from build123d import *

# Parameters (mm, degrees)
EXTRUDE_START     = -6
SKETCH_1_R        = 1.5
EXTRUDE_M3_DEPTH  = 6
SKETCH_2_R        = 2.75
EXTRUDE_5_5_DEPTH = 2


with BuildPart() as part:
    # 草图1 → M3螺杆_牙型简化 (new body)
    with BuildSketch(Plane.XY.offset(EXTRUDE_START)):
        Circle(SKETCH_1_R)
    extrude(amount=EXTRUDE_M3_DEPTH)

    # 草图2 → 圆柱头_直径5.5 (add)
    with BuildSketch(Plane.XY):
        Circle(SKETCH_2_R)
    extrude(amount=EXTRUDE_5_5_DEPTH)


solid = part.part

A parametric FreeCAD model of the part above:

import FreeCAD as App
import Part
import Sketcher
Q = App.Units.Quantity

doc = App.newDocument("Part")
body = doc.addObject("PartDesign::Body", "Body")

sketch1 = body.newObject("Sketcher::SketchObject", "Sketch")
sketch1.AttachmentSupport = (doc.getObject("XY_Plane"), [""])
sketch1.MapMode = "FlatFace"
sketch1.AttachmentOffset = App.Placement(App.Vector(0, 0, -6), App.Rotation())
sketch1.addGeometry(Part.Circle(App.Vector(0, 0, 0), App.Vector(0, 0, 1), 1.5), False)
sketch1.addConstraint([
    Sketcher.Constraint("Coincident", 0, 3, -1, 1),
    Sketcher.Constraint("Diameter", 0, Q("3 mm")),
])
pad1 = body.newObject("PartDesign::Pad", "Pad")
pad1.Profile = sketch1
pad1.Length = 6

sketch2 = body.newObject("Sketcher::SketchObject", "Sketch001")
sketch2.AttachmentSupport = (doc.getObject("XY_Plane"), [""])
sketch2.MapMode = "FlatFace"
sketch2.addGeometry(Part.Circle(App.Vector(0, 0, 0), App.Vector(0, 0, 1), 2.8), False)
sketch2.addConstraint([
    Sketcher.Constraint("Coincident", 0, 3, -1, 1),
    Sketcher.Constraint("Diameter", 0, Q("5.5 mm")),
])
pad2 = body.newObject("PartDesign::Pad", "Pad001")
pad2.Profile = sketch2
pad2.Length = 2

doc.recompute()
